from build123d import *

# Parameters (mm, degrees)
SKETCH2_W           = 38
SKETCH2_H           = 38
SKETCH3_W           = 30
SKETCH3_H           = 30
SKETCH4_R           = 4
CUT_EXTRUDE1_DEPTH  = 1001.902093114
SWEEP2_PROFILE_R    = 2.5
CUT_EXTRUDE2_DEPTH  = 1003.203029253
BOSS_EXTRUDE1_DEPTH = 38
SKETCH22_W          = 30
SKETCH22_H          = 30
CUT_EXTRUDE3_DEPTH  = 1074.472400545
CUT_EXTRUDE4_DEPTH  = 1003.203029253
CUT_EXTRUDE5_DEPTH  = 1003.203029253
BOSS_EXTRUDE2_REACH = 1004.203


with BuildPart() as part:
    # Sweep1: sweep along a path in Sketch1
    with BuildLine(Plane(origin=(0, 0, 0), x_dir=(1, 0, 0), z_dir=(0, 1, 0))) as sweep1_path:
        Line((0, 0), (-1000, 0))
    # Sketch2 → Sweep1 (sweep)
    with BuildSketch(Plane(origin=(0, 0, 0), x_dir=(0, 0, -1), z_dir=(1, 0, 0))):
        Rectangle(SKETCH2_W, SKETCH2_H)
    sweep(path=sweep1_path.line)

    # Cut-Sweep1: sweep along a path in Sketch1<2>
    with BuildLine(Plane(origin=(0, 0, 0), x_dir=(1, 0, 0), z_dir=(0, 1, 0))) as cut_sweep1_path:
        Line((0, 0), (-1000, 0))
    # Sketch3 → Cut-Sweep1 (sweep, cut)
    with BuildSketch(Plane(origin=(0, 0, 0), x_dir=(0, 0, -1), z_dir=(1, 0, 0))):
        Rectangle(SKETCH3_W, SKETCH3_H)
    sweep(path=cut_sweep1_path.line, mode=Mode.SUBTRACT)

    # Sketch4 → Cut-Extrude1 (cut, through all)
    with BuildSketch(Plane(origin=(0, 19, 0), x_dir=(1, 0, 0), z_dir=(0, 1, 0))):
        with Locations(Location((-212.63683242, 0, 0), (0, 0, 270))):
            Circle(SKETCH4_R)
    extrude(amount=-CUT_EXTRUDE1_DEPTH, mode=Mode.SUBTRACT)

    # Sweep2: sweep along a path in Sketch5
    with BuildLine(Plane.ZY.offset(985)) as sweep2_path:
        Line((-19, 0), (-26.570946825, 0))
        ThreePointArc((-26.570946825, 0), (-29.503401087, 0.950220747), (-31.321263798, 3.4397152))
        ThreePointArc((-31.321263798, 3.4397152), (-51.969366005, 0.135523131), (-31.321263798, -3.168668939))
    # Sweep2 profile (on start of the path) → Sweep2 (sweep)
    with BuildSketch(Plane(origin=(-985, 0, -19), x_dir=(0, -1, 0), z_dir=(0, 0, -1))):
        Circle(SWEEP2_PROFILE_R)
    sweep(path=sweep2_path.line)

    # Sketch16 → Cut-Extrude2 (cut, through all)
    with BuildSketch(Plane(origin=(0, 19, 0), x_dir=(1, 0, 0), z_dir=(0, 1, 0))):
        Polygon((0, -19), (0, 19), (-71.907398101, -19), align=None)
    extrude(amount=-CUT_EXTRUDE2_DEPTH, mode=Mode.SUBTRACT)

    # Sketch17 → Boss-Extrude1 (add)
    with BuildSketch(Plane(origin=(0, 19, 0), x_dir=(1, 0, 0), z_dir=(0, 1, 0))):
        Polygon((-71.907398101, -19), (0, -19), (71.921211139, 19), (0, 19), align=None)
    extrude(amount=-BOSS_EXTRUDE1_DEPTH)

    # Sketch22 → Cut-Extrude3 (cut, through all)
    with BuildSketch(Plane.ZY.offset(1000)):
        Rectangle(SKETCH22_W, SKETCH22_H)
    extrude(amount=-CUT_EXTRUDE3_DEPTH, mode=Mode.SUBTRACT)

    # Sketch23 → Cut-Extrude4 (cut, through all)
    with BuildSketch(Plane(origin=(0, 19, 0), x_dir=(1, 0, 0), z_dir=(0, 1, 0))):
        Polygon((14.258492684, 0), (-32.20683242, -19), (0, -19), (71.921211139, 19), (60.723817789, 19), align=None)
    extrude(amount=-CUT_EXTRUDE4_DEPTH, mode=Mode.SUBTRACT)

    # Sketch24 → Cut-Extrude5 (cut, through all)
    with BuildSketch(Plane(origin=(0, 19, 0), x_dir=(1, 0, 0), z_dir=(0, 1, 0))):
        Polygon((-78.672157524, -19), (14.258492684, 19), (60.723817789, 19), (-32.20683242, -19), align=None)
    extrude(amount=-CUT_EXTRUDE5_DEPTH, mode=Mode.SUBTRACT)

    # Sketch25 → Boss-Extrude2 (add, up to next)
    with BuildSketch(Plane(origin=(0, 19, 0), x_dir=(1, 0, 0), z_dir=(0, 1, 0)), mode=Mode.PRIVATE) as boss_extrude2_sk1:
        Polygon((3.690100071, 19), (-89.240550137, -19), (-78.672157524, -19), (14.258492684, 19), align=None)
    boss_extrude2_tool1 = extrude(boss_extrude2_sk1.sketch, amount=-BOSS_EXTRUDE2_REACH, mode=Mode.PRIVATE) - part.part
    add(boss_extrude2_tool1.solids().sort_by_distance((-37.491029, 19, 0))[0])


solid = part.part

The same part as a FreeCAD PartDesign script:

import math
import FreeCAD as App
import Part
import Sketcher

V = App.Vector
Q = App.Units.Quantity

doc = App.newDocument("Part")
body = doc.addObject("PartDesign::Body", "Body")

sketch1 = body.newObject("Sketcher::SketchObject", "Sketch")
sketch1.AttachmentSupport = (doc.getObject("YZ_Plane"), [""])
sketch1.MapMode = "FlatFace"
sketch1.addGeometry([
    Part.LineSegment(V(19, 19, 0), V(-19, 19, 0)),
    Part.LineSegment(V(-19, 19, 0), V(-19, -19, 0)),
    Part.LineSegment(V(-19, -19, 0), V(19, -19, 0)),
    Part.LineSegment(V(19, -19, 0), V(19, 19, 0)),
], False)
sketch1.addConstraint([
    Sketcher.Constraint("Coincident", 0, 2, 1, 1),
    Sketcher.Constraint("Coincident", 1, 2, 2, 1),
    Sketcher.Constraint("Coincident", 2, 2, 3, 1),
    Sketcher.Constraint("Coincident", 3, 2, 0, 1),
    Sketcher.Constraint("Horizontal", 0),
    Sketcher.Constraint("Vertical", 1),
    Sketcher.Constraint("Horizontal", 2),
    Sketcher.Constraint("Vertical", 3),
    Sketcher.Constraint("Symmetric", 0, 2, 2, 2, -1, 1),
    Sketcher.Constraint("Equal", 2, 1),
    Sketcher.Constraint("DistanceX", 0, 2, 0, 1, Q("38 mm")),
])

sketch2 = body.newObject("Sketcher::SketchObject", "Sketch001")
sketch2.AttachmentSupport = (doc.getObject("XY_Plane"), [""])
sketch2.MapMode = "FlatFace"
sketch2.addGeometry(Part.LineSegment(V(0, 0, 0), V(-1000, 0, 0)), False)
sketch2.addConstraint([
    Sketcher.Constraint("Horizontal", 0),
    Sketcher.Constraint("Coincident", 0, 1, -1, 1),
    Sketcher.Constraint("DistanceX", 0, 2, 0, 1, Q("1000 mm")),
])
doc.recompute()

additivepipe = body.newObject("PartDesign::AdditivePipe", "AdditivePipe")
additivepipe.Profile = sketch1
additivepipe.Spine = (sketch2, ["Edge1"])

sketch3 = body.newObject("Sketcher::SketchObject", "Sketch002")
sketch3.AttachmentSupport = (doc.getObject("YZ_Plane"), [""])
sketch3.MapMode = "FlatFace"
sketch3.addGeometry([
    Part.LineSegment(V(15, 15, 0), V(-15, 15, 0)),
    Part.LineSegment(V(-15, 15, 0), V(-15, -15, 0)),
    Part.LineSegment(V(-15, -15, 0), V(15, -15, 0)),
    Part.LineSegment(V(15, -15, 0), V(15, 15, 0)),
], False)
sketch3.addConstraint([
    Sketcher.Constraint("Coincident", 0, 2, 1, 1),
    Sketcher.Constraint("Coincident", 1, 2, 2, 1),
    Sketcher.Constraint("Coincident", 2, 2, 3, 1),
    Sketcher.Constraint("Coincident", 3, 2, 0, 1),
    Sketcher.Constraint("Horizontal", 0),
    Sketcher.Constraint("Vertical", 1),
    Sketcher.Constraint("Horizontal", 2),
    Sketcher.Constraint("Vertical", 3),
    Sketcher.Constraint("Symmetric", 0, 2, 2, 2, -1, 1),
    Sketcher.Constraint("Equal", 2, 1),
    Sketcher.Constraint("DistanceX", 0, 2, 0, 1, Q("30 mm")),
])

sketch4 = body.newObject("Sketcher::SketchObject", "Sketch003")
sketch4.AttachmentSupport = (doc.getObject("XY_Plane"), [""])
sketch4.MapMode = "FlatFace"
sketch4.addGeometry(Part.LineSegment(V(0, 0, 0), V(-1000, 0, 0)), False)
sketch4.addConstraint([
    Sketcher.Constraint("Horizontal", 0),
    Sketcher.Constraint("Coincident", 0, 1, -1, 1),
    Sketcher.Constraint("DistanceX", 0, 2, 0, 1, Q("1000 mm")),
])
doc.recompute()

subtractivepipe = body.newObject("PartDesign::SubtractivePipe", "SubtractivePipe")
subtractivepipe.Profile = sketch3
subtractivepipe.Spine = (sketch4, ["Edge1"])

sketch5 = body.newObject("Sketcher::SketchObject", "Sketch004")
sketch5.AttachmentSupport = (doc.getObject("XZ_Plane"), [""])
sketch5.MapMode = "FlatFace"
sketch5.AttachmentOffset = App.Placement(V(0, 0, -19), App.Rotation())
sketch5.addGeometry(Part.Circle(V(-212.6, 0, 0), V(0, 0, 1), 4), False)
sketch5.addConstraint([
    Sketcher.Constraint("PointOnObject", 0, 3, -1),
    Sketcher.Constraint("Diameter", 0, Q("8 mm")),
    Sketcher.Constraint("DistanceX", 0, 3, -1, 1, Q("212.636832 mm")),
])
pocket1 = body.newObject("PartDesign::Pocket", "Pocket")
pocket1.Profile = sketch5
pocket1.Type = "ThroughAll"
pocket1.Reversed = True

sketch6 = body.newObject("Sketcher::SketchObject", "Sketch005")
sketch6.AttachmentSupport = (doc.getObject("XY_Plane"), [""])
sketch6.MapMode = "FlatFace"
sketch6.AttachmentOffset = App.Placement(V(0, 0, -19), App.Rotation())
sketch6.addGeometry(Part.Circle(V(-985, 0, 0), V(0, 0, 1), 2.5), False)
sketch6.addConstraint([
    Sketcher.Constraint("PointOnObject", 0, 3, -1),
    Sketcher.Constraint("Diameter", 0, Q("5 mm")),
    Sketcher.Constraint("DistanceX", 0, 3, -1, 1, Q("985 mm")),
])

sketch7 = body.newObject("Sketcher::SketchObject", "Sketch006")
sketch7.AttachmentSupport = (doc.getObject("YZ_Plane"), [""])
sketch7.MapMode = "FlatFace"
sketch7.AttachmentOffset = App.Placement(V(0, 0, -985), App.Rotation())
sketch7.addGeometry([
    Part.LineSegment(V(0, -19, 0), V(0, -27, 0)),
    Part.ArcOfCircle(Part.Circle(V(5, -27, 0), V(0, 0, 1), 5), math.radians(-180), math.radians(-108)),
    Part.ArcOfCircle(Part.Circle(V(0, -41, 0), V(0, 0, 1), 11), math.radians(108), math.radians(432)),
], False)
sketch7.addConstraint([
    Sketcher.Constraint("Tangent", 0, 2, 1, 1),
    Sketcher.Constraint("Tangent", 1, 2, 2, 2),
    Sketcher.Constraint("Vertical", 0),
    Sketcher.Constraint("PointOnObject", 0, 1, -2),
    Sketcher.Constraint("Horizontal", 1, 2, 2, 1),
    Sketcher.Constraint("Radius", 1, Q("5 mm")),
    Sketcher.Constraint("DistanceY", 0, 1, -1, 1, Q("19 mm")),
    Sketcher.Constraint("Radius", 2, Q("10.588426 mm")),
    Sketcher.Constraint("DistanceY", 0, 2, 0, 1, Q("7.570947 mm")),
    Sketcher.Constraint("DistanceY", 2, 3, -1, 1, Q("41.38094 mm")),
])
doc.recompute()

additivepipe2 = body.newObject("PartDesign::AdditivePipe", "AdditivePipe001")
additivepipe2.Profile = sketch6
additivepipe2.Spine = (sketch7, ["Edge1", "Edge2", "Edge3"])

sketch8 = body.newObject("Sketcher::SketchObject", "Sketch007")
sketch8.AttachmentSupport = (doc.getObject("XZ_Plane"), [""])
sketch8.MapMode = "FlatFace"
sketch8.AttachmentOffset = App.Placement(V(0, 0, -19), App.Rotation())
sketch8.addGeometry([
    Part.LineSegment(V(0, 19, 0), V(0, -19, 0)),
    Part.LineSegment(V(0, -19, 0), V(-72, 19, 0)),
    Part.LineSegment(V(-72, 19, 0), V(0, 19, 0)),
], False)
sketch8.addConstraint([
    Sketcher.Constraint("Coincident", 0, 2, 1, 1),
    Sketcher.Constraint("Coincident", 1, 2, 2, 1),
    Sketcher.Constraint("Coincident", 2, 2, 0, 1),
    Sketcher.Constraint("Vertical", 0),
    Sketcher.Constraint("Horizontal", 2),
    Sketcher.Constraint("Symmetric", 0, 2, 2, 2, -1, 1),
    Sketcher.Constraint("DistanceY", 0, 2, 0, 1, Q("38 mm")),
    Sketcher.Constraint("DistanceX", 2, 1, 2, 2, Q("71.907398 mm")),
])
pocket2 = body.newObject("PartDesign::Pocket", "Pocket001")
pocket2.Profile = sketch8
pocket2.Type = "ThroughAll"
pocket2.Reversed = True

sketch9 = body.newObject("Sketcher::SketchObject", "Sketch008")
sketch9.AttachmentSupport = (doc.getObject("XZ_Plane"), [""])
sketch9.MapMode = "FlatFace"
sketch9.AttachmentOffset = App.Placement(V(0, 0, -19), App.Rotation())
sketch9.addGeometry([
    Part.LineSegment(V(-72, 19, 0), V(0, 19, 0)),
    Part.LineSegment(V(0, 19, 0), V(72, -19, 0)),
    Part.LineSegment(V(72, -19, 0), V(0, -19, 0)),
    Part.LineSegment(V(0, -19, 0), V(-72, 19, 0)),
], False)
sketch9.addConstraint([
    Sketcher.Constraint("Coincident", 0, 2, 1, 1),
    Sketcher.Constraint("Coincident", 1, 2, 2, 1),
    Sketcher.Constraint("Coincident", 2, 2, 3, 1),
    Sketcher.Constraint("Coincident", 3, 2, 0, 1),
    Sketcher.Constraint("Horizontal", 0),
    Sketcher.Constraint("Horizontal", 2),
    Sketcher.Constraint("Symmetric", 0, 2, 2, 2, -1, 1),
    Sketcher.Constraint("PointOnObject", 0, 2, -2),
    Sketcher.Constraint("DistanceY", -1, 1, 0, 2, Q("19 mm")),
    Sketcher.Constraint("Angle", 1, Q("-27.85 deg")),
    Sketcher.Constraint("DistanceX", 0, 1, 0, 2, Q("71.907398 mm")),
])
pad1 = body.newObject("PartDesign::Pad", "Pad")
pad1.Profile = sketch9
pad1.Length = 38

sketch10 = body.newObject("Sketcher::SketchObject", "Sketch009")
sketch10.AttachmentSupport = (doc.getObject("YZ_Plane"), [""])
sketch10.MapMode = "FlatFace"
sketch10.AttachmentOffset = App.Placement(V(0, 0, -1000), App.Rotation())
sketch10.addGeometry([
    Part.LineSegment(V(15, -15, 0), V(-15, -15, 0)),
    Part.LineSegment(V(-15, -15, 0), V(-15, 15, 0)),
    Part.LineSegment(V(-15, 15, 0), V(15, 15, 0)),
    Part.LineSegment(V(15, 15, 0), V(15, -15, 0)),
], False)
sketch10.addConstraint([
    Sketcher.Constraint("Coincident", 0, 2, 1, 1),
    Sketcher.Constraint("Coincident", 1, 2, 2, 1),
    Sketcher.Constraint("Coincident", 2, 2, 3, 1),
    Sketcher.Constraint("Coincident", 3, 2, 0, 1),
    Sketcher.Constraint("Horizontal", 0),
    Sketcher.Constraint("Vertical", 1),
    Sketcher.Constraint("Horizontal", 2),
    Sketcher.Constraint("Vertical", 3),
    Sketcher.Constraint("Symmetric", 0, 2, 2, 2, -1, 1),
    Sketcher.Constraint("Equal", 2, 1),
    Sketcher.Constraint("DistanceX", 0, 2, 0, 1, Q("30 mm")),
])
pocket3 = body.newObject("PartDesign::Pocket", "Pocket002")
pocket3.Profile = sketch10
pocket3.Type = "ThroughAll"
pocket3.Reversed = True

sketch11 = body.newObject("Sketcher::SketchObject", "Sketch010")
sketch11.AttachmentSupport = (doc.getObject("XZ_Plane"), [""])
sketch11.MapMode = "FlatFace"
sketch11.AttachmentOffset = App.Placement(V(0, 0, -19), App.Rotation())
sketch11.addGeometry([
    Part.LineSegment(V(14, 0, 0), V(-32, 19, 0)),
    Part.LineSegment(V(-32, 19, 0), V(0, 19, 0)),
    Part.LineSegment(V(0, 19, 0), V(72, -19, 0)),
    Part.LineSegment(V(72, -19, 0), V(61, -19, 0)),
    Part.LineSegment(V(61, -19, 0), V(14, 0, 0)),
], False)
sketch11.addConstraint([
    Sketcher.Constraint("Coincident", 0, 2, 1, 1),
    Sketcher.Constraint("Coincident", 1, 2, 2, 1),
    Sketcher.Constraint("Coincident", 2, 2, 3, 1),
    Sketcher.Constraint("Coincident", 3, 2, 4, 1),
    Sketcher.Constraint("Coincident", 4, 2, 0, 1),
    Sketcher.Constraint("Horizontal", 1),
    Sketcher.Constraint("Horizontal", 3),
    Sketcher.Constraint("PointOnObject", 1, 2, -2),
    Sketcher.Constraint("PointOnObject", 4, 2, -1),
    Sketcher.Constraint("Parallel", 0, 4),
    Sketcher.Constraint("Equal", 0, 4),
    Sketcher.Constraint("DistanceY", -1, 1, 0, 2, Q("19 mm")),
    Sketcher.Constraint("Angle", 0, Q("157.76 deg")),
    Sketcher.Constraint("Angle", 2, Q("-27.85 deg")),
    Sketcher.Constraint("DistanceX", 1, 1, 1, 2, Q("32.206832 mm")),
])
pocket4 = body.newObject("PartDesign::Pocket", "Pocket003")
pocket4.Profile = sketch11
pocket4.Type = "ThroughAll"
pocket4.Reversed = True

sketch12 = body.newObject("Sketcher::SketchObject", "Sketch011")
sketch12.AttachmentSupport = (doc.getObject("XZ_Plane"), [""])
sketch12.MapMode = "FlatFace"
sketch12.AttachmentOffset = App.Placement(V(0, 0, -19), App.Rotation())
sketch12.addGeometry([
    Part.LineSegment(V(14, -19, 0), V(-79, 19, 0)),
    Part.LineSegment(V(-79, 19, 0), V(-32, 19, 0)),
    Part.LineSegment(V(-32, 19, 0), V(61, -19, 0)),
    Part.LineSegment(V(61, -19, 0), V(14, -19, 0)),
], False)
sketch12.addConstraint([
    Sketcher.Constraint("Coincident", 0, 2, 1, 1),
    Sketcher.Constraint("Coincident", 1, 2, 2, 1),
    Sketcher.Constraint("Coincident", 2, 2, 3, 1),
    Sketcher.Constraint("Coincident", 3, 2, 0, 1),
    Sketcher.Constraint("Horizontal", 1),
    Sketcher.Constraint("Horizontal", 3),
    Sketcher.Constraint("Parallel", 0, 2),
    Sketcher.Constraint("DistanceY", -1, 1, 0, 2, Q("19 mm")),
    Sketcher.Constraint("DistanceY", 2, 2, -1, 1, Q("19 mm")),
    Sketcher.Constraint("Angle", 0, Q("157.76 deg")),
    Sketcher.Constraint("DistanceX", 1, 1, 1, 2, Q("46.465325 mm")),
    Sketcher.Constraint("DistanceX", 0, 2, -1, 1, Q("78.672158 mm")),
])
pocket5 = body.newObject("PartDesign::Pocket", "Pocket004")
pocket5.Profile = sketch12
pocket5.Type = "ThroughAll"
pocket5.Reversed = True

sketch13 = body.newObject("Sketcher::SketchObject", "Sketch012")
sketch13.AttachmentSupport = (doc.getObject("XZ_Plane"), [""])
sketch13.MapMode = "FlatFace"
sketch13.AttachmentOffset = App.Placement(V(0, 0, -19), App.Rotation())
sketch13.addGeometry([
    Part.LineSegment(V(4, -19, 0), V(-89, 19, 0)),
    Part.LineSegment(V(-89, 19, 0), V(-79, 19, 0)),
    Part.LineSegment(V(-79, 19, 0), V(14, -19, 0)),
    Part.LineSegment(V(14, -19, 0), V(4, -19, 0)),
], False)
sketch13.addConstraint([
    Sketcher.Constraint("Coincident", 0, 2, 1, 1),
    Sketcher.Constraint("Coincident", 1, 2, 2, 1),
    Sketcher.Constraint("Coincident", 2, 2, 3, 1),
    Sketcher.Constraint("Coincident", 3, 2, 0, 1),
    Sketcher.Constraint("Horizontal", 1),
    Sketcher.Constraint("Horizontal", 3),
    Sketcher.Constraint("Parallel", 0, 2),
    Sketcher.Constraint("DistanceY", -1, 1, 0, 2, Q("19 mm")),
    Sketcher.Constraint("DistanceY", 2, 2, -1, 1, Q("19 mm")),
    Sketcher.Constraint("Angle", 0, Q("157.76 deg")),
    Sketcher.Constraint("DistanceX", -1, 1, 3, 2, Q("3.6901 mm")),
    Sketcher.Constraint("DistanceX", 1, 1, 1, 2, Q("10.568393 mm")),
])
pad2 = body.newObject("PartDesign::Pad", "Pad001")
pad2.Profile = sketch13
pad2.Length = 34

doc.recompute()
